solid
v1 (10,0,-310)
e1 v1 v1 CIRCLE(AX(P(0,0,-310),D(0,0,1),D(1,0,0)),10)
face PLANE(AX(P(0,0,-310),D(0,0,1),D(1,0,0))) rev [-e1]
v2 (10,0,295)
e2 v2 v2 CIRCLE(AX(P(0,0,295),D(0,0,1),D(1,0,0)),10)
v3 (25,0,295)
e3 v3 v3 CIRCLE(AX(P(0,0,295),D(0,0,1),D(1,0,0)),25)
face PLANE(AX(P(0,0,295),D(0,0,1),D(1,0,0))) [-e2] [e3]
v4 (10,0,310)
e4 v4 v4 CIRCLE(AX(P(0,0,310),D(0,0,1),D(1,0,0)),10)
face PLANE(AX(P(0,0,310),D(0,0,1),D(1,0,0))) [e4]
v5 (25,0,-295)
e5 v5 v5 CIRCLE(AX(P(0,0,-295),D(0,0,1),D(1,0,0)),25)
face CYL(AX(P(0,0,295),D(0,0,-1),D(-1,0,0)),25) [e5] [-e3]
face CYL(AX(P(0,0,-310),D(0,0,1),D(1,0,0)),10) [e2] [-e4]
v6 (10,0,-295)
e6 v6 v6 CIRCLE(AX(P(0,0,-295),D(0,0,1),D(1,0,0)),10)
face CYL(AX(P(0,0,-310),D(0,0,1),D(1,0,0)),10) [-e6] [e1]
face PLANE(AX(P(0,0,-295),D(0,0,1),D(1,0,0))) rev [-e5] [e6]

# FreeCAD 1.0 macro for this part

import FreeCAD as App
import Part
import Sketcher

V = App.Vector

doc = App.newDocument("Part")
body = doc.addObject("PartDesign::Body", "Body")

# Sketch on XY plane
sketch1 = body.newObject("Sketcher::SketchObject", "Sketch")
sketch1.AttachmentSupport = (doc.getObject("XY_Plane"), [""])
sketch1.MapMode = "FlatFace"
sketch1.addGeometry(Part.Circle(V(0, 0, 0), V(0, 0, 1), 25), False)
sketch1.addConstraint(Sketcher.Constraint("Coincident", 0, 3, -1, 1))
sketch1.addConstraint(Sketcher.Constraint("Diameter", 0, 50.0))
pad1 = body.newObject("PartDesign::Pad", "Pad")
pad1.Profile = sketch1
pad1.Length = 590
pad1.Midplane = True

# Sketch on XY plane
sketch2 = body.newObject("Sketcher::SketchObject", "Sketch001")
sketch2.AttachmentSupport = (doc.getObject("XY_Plane"), [""])
sketch2.MapMode = "FlatFace"
sketch2.addGeometry(Part.Circle(V(0, 0, 0), V(0, 0, 1), 10), False)
sketch2.addConstraint(Sketcher.Constraint("Coincident", 0, 3, -1, 1))
sketch2.addConstraint(Sketcher.Constraint("Diameter", 0, 20.0))
pad2 = body.newObject("PartDesign::Pad", "Pad001")
pad2.Profile = sketch2
pad2.Type = "TwoLengths"
pad2.Length = 310
pad2.Length2 = 310

doc.recompute()
